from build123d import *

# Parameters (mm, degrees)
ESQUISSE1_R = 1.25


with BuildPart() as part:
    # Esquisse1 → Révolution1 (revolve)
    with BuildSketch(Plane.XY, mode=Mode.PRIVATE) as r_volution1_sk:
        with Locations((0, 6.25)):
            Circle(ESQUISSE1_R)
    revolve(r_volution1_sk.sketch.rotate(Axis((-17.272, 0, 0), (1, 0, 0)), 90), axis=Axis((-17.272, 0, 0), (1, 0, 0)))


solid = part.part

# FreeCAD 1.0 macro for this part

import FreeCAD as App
import Part
import Sketcher
from FreeCAD import Vector
Q = App.Units.Quantity

doc = App.newDocument("Part")
params = doc.addObject("Spreadsheet::Sheet", "Params")
for row, (alias, value) in enumerate([
    ("sketch1_diameter", "2.5 mm"),
    ("revolution_angle", "360 deg"),
], start=1):
    params.set(f"A{row}", alias)
    params.set(f"B{row}", "=" + value)
    params.setAlias(f"B{row}", alias)

body = doc.addObject("PartDesign::Body", "Body")

# Sketch on XY plane
sketch1 = doc.addObject("Sketcher::SketchObject", "Sketch")
body.addObject(sketch1)
sketch1.AttachmentSupport = (doc.XY_Plane, [""])
sketch1.MapMode = "FlatFace"
sketch1.addGeometry(Part.Circle(Vector(0, 6.2, 0), Vector(0, 0, 1), 1.2), False)
sketch1.addConstraint(Sketcher.Constraint("PointOnObject", 0, 3, -2))
sketch1.addConstraint(Sketcher.Constraint("Diameter", 0, Q("2.5 mm")))
sketch1.addConstraint(Sketcher.Constraint("DistanceY", -1, 1, 0, 3, Q("6.25 mm")))
sketch1.setExpression("Constraints[1]", "Params.sketch1_diameter")
revolution = doc.addObject("PartDesign::Revolution", "Revolution")
body.addObject(revolution)
revolution.Profile = sketch1
revolution.ReferenceAxis = (sketch1, ["H_Axis"])
revolution.setExpression("Angle", "Params.revolution_angle")

doc.recompute()
